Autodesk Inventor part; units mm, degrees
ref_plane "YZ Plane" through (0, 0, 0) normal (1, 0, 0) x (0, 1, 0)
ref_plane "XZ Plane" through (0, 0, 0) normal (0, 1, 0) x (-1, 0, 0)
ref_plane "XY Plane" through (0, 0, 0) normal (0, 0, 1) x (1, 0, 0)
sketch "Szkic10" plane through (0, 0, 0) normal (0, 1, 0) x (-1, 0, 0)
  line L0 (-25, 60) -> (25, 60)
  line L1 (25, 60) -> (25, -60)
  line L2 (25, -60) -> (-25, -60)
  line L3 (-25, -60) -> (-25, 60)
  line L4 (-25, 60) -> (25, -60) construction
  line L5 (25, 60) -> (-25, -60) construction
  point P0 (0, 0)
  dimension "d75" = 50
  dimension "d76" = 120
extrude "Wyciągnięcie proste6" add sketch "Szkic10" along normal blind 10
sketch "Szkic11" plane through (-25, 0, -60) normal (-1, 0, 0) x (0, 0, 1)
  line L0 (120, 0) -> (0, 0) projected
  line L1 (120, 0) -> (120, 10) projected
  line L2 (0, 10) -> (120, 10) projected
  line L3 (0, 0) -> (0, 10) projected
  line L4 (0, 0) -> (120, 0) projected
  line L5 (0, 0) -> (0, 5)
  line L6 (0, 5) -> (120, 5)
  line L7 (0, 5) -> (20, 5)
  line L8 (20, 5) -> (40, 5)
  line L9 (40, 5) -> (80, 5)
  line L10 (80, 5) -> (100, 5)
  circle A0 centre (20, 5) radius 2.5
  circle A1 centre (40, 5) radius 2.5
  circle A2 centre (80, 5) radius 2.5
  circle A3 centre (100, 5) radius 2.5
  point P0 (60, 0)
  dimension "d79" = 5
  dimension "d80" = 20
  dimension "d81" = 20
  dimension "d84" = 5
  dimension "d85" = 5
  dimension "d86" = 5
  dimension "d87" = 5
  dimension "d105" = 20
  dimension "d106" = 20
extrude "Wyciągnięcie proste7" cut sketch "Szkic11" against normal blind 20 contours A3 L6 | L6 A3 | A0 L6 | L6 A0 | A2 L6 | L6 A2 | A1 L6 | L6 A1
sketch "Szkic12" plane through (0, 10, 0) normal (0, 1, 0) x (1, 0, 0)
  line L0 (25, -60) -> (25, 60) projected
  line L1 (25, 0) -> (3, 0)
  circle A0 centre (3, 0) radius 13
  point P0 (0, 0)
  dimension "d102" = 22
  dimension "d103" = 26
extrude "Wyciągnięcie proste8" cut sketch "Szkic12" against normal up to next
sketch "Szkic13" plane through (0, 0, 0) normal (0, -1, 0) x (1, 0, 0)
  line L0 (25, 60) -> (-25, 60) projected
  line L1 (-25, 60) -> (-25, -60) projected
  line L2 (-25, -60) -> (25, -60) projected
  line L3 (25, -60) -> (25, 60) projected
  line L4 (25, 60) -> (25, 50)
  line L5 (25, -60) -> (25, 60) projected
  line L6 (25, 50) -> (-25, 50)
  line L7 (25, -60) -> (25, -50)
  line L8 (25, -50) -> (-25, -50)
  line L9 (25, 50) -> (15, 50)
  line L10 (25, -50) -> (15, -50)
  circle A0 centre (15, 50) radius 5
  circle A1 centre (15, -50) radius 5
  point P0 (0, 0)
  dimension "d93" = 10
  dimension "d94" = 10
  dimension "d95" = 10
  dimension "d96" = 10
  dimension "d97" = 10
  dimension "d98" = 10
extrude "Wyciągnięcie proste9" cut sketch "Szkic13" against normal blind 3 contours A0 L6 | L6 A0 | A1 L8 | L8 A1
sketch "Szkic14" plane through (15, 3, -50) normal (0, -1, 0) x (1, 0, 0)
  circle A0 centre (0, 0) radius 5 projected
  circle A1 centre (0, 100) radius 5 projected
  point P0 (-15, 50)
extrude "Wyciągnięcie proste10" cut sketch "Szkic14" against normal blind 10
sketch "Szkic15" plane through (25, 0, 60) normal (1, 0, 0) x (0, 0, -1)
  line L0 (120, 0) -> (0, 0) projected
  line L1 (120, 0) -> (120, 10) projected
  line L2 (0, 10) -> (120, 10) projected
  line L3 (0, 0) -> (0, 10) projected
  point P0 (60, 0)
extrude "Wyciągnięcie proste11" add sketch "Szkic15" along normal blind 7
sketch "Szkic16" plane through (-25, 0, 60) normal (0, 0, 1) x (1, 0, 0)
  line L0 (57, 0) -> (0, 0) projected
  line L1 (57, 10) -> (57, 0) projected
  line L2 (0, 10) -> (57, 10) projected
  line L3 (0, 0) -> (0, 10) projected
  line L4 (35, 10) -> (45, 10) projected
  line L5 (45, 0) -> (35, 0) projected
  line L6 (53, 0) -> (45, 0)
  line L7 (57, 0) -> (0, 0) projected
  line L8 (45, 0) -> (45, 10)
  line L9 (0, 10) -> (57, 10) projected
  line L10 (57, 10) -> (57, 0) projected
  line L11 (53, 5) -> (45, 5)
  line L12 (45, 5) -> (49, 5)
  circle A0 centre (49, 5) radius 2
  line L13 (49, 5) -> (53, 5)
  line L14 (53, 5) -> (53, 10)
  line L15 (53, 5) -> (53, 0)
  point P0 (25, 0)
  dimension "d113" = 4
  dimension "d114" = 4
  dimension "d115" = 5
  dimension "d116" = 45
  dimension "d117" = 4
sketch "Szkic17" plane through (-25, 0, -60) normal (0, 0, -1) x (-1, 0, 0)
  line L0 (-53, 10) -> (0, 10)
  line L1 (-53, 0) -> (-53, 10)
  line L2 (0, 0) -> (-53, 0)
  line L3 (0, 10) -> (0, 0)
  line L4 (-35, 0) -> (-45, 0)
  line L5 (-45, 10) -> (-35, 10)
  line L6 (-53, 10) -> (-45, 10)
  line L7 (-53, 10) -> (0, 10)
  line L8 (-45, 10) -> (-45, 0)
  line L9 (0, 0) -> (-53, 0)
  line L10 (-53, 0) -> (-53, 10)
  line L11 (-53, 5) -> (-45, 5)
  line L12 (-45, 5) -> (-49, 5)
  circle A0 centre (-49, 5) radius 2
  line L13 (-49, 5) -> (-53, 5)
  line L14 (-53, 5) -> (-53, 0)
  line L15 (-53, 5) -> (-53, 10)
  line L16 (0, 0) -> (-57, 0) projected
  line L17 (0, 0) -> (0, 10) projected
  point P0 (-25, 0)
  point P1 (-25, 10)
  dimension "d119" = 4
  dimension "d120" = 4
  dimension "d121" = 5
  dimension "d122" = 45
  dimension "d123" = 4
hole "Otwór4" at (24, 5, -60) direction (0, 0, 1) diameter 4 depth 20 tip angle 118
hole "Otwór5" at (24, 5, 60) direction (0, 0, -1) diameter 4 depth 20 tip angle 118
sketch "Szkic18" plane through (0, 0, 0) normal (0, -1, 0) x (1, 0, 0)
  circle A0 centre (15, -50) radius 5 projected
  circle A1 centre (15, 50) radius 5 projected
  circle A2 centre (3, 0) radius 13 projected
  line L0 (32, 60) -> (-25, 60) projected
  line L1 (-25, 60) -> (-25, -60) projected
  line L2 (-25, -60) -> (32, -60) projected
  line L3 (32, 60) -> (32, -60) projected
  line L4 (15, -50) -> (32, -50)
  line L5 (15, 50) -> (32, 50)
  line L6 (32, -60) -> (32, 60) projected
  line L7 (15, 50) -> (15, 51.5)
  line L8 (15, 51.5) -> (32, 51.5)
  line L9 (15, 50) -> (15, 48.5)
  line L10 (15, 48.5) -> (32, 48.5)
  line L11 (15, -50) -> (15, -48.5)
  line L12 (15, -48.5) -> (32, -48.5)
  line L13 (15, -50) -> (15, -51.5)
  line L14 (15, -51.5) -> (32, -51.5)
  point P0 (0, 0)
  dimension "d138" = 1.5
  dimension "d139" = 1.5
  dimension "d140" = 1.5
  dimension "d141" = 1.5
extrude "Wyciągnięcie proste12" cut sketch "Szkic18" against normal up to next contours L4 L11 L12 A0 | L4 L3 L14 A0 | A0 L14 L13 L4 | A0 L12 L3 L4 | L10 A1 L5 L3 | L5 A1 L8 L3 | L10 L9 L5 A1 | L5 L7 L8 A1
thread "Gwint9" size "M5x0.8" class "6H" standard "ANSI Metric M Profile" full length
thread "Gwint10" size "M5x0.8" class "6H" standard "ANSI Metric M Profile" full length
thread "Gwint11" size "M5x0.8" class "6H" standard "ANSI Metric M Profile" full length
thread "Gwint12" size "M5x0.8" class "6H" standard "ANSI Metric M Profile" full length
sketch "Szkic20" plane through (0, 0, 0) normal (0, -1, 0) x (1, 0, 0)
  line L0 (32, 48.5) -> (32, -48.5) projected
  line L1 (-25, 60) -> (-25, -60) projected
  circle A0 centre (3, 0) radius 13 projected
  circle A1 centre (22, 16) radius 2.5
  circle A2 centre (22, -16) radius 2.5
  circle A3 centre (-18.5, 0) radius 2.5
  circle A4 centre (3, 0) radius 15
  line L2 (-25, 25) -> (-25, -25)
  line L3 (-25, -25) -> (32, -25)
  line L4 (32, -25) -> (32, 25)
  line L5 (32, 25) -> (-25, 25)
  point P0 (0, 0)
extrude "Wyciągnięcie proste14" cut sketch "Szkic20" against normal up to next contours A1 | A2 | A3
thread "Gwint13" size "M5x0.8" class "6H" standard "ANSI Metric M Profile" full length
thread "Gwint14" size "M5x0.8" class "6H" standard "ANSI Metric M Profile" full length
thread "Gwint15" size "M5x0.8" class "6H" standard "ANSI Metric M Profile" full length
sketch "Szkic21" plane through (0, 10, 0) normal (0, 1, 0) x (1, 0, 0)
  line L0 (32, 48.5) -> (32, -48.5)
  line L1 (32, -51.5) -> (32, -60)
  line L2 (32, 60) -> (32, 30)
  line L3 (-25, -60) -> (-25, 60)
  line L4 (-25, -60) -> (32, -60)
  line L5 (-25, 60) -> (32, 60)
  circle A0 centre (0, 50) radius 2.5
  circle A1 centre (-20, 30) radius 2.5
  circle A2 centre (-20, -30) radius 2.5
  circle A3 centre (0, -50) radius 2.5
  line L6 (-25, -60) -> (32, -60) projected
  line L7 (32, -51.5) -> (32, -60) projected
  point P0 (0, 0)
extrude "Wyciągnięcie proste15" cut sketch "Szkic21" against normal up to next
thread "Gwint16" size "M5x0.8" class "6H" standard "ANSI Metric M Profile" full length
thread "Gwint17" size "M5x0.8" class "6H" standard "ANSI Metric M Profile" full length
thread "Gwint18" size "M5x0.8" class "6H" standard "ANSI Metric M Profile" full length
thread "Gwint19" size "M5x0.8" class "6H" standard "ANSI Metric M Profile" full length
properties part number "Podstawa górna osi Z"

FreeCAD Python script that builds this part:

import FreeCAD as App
import Part
import Sketcher


def add_polygon(sketch, points):
    """Adds a closed chain of lines whose ends are joined by coincident constraints."""
    first, n = sketch.GeometryCount, len(points)
    for a, b in zip(points, points[1:] + points[:1]):
        sketch.addGeometry(Part.LineSegment(App.Vector(*a, 0), App.Vector(*b, 0)), False)
    for i in range(n):
        sketch.addConstraint(Sketcher.Constraint("Coincident", first + i, 2, first + (i + 1) % n, 1))

doc = App.newDocument("Part")
body = doc.addObject("PartDesign::Body", "Body")

sketch1 = body.newObject("Sketcher::SketchObject", "Sketch")
sketch1.AttachmentSupport = (doc.getObject("XZ_Plane"), [""])
sketch1.MapMode = "FlatFace"
add_polygon(sketch1, [(-25, 60), (25, 60), (25, -60), (-25, -60)])
sketch1.addConstraint(Sketcher.Constraint("Horizontal", 0))
sketch1.addConstraint(Sketcher.Constraint("Vertical", 1))
sketch1.addConstraint(Sketcher.Constraint("Horizontal", 2))
sketch1.addConstraint(Sketcher.Constraint("Vertical", 3))
sketch1.addConstraint(Sketcher.Constraint("Symmetric", 0, 2, 2, 2, -1, 1))
sketch1.addConstraint(Sketcher.Constraint("DistanceX", 0, 1, 0, 2, 50.0))
sketch1.addConstraint(Sketcher.Constraint("DistanceY", 1, 2, 1, 1, 120.0))
pad1 = body.newObject("PartDesign::Pad", "Pad")
pad1.Profile = sketch1
pad1.Length = 10
pad1.Reversed = True

sketch2 = body.newObject("Sketcher::SketchObject", "Sketch001")
sketch2.AttachmentSupport = (doc.getObject("YZ_Plane"), [""])
sketch2.MapMode = "FlatFace"
sketch2.AttachmentOffset = App.Placement(App.Vector(0, 0, -25), App.Rotation())
sketch2.addGeometry(Part.Circle(App.Vector(5, 40, 0), App.Vector(0, 0, 1), 2.5), False)
sketch2.addGeometry(Part.Circle(App.Vector(5, -40, 0), App.Vector(0, 0, 1), 2.5), False)
sketch2.addGeometry(Part.Circle(App.Vector(5, 20, 0), App.Vector(0, 0, 1), 2.5), False)
sketch2.addGeometry(Part.Circle(App.Vector(5, -20, 0), App.Vector(0, 0, 1), 2.5), False)
sketch2.addConstraint(Sketcher.Constraint("Equal", 0, 1))
sketch2.addConstraint(Sketcher.Constraint("Equal", 1, 2))
sketch2.addConstraint(Sketcher.Constraint("Equal", 2, 3))
sketch2.addConstraint(Sketcher.Constraint("Symmetric", 0, 3, 1, 3, -1))
sketch2.addConstraint(Sketcher.Constraint("Symmetric", 2, 3, 3, 3, -1))
sketch2.addConstraint(Sketcher.Constraint("Vertical", 1, 3, 2, 3))
sketch2.addConstraint(Sketcher.Constraint("Diameter", 0, 5.0))
sketch2.addConstraint(Sketcher.Constraint("DistanceX", -1, 1, 0, 3, 5.0))
sketch2.addConstraint(Sketcher.Constraint("DistanceY", -1, 1, 2, 3, 20.0))
sketch2.addConstraint(Sketcher.Constraint("DistanceY", 2, 3, 0, 3, 20.0))
pocket1 = body.newObject("PartDesign::Pocket", "Pocket")
pocket1.Profile = sketch2
pocket1.Length = 20
pocket1.Reversed = True

sketch3 = body.newObject("Sketcher::SketchObject", "Sketch002")
sketch3.AttachmentSupport = (doc.getObject("XZ_Plane"), [""])
sketch3.MapMode = "FlatFace"
sketch3.AttachmentOffset = App.Placement(App.Vector(0, 0, -10), App.Rotation())
sketch3.addGeometry(Part.Circle(App.Vector(3, 0, 0), App.Vector(0, 0, 1), 13), False)
sketch3.addConstraint(Sketcher.Constraint("PointOnObject", 0, 3, -1))
sketch3.addConstraint(Sketcher.Constraint("Diameter", 0, 26.0))
sketch3.addConstraint(Sketcher.Constraint("DistanceX", -1, 1, 0, 3, 3.0))
pocket2 = body.newObject("PartDesign::Pocket", "Pocket001")
pocket2.Profile = sketch3
pocket2.Type = "UpToFirst"
pocket2.Reversed = True

sketch4 = body.newObject("Sketcher::SketchObject", "Sketch003")
sketch4.AttachmentSupport = (doc.getObject("XZ_Plane"), [""])
sketch4.MapMode = "FlatFace"
sketch4.addGeometry(Part.Circle(App.Vector(15, 50, 0), App.Vector(0, 0, 1), 5), False)
sketch4.addGeometry(Part.Circle(App.Vector(15, -50, 0), App.Vector(0, 0, 1), 5), False)
sketch4.addConstraint(Sketcher.Constraint("Equal", 0, 1))
sketch4.addConstraint(Sketcher.Constraint("Symmetric", 0, 3, 1, 3, -1))
sketch4.addConstraint(Sketcher.Constraint("Diameter", 0, 10.0))
sketch4.addConstraint(Sketcher.Constraint("DistanceX", -1, 1, 0, 3, 15.0))
sketch4.addConstraint(Sketcher.Constraint("DistanceY", -1, 1, 0, 3, 50.0))
pocket3 = body.newObject("PartDesign::Pocket", "Pocket002")
pocket3.Profile = sketch4
pocket3.Length = 3

sketch5 = body.newObject("Sketcher::SketchObject", "Sketch004")
sketch5.AttachmentSupport = (doc.getObject("XZ_Plane"), [""])
sketch5.MapMode = "FlatFace"
sketch5.AttachmentOffset = App.Placement(App.Vector(0, 0, -3), App.Rotation())
sketch5.addGeometry(Part.Circle(App.Vector(15, -50, 0), App.Vector(0, 0, 1), 5), False)
sketch5.addGeometry(Part.Circle(App.Vector(15, 50, 0), App.Vector(0, 0, 1), 5), False)
sketch5.addConstraint(Sketcher.Constraint("Equal", 0, 1))
sketch5.addConstraint(Sketcher.Constraint("Symmetric", 0, 3, 1, 3, -1))
sketch5.addConstraint(Sketcher.Constraint("Diameter", 0, 10.0))
sketch5.addConstraint(Sketcher.Constraint("DistanceX", -1, 1, 0, 3, 15.0))
sketch5.addConstraint(Sketcher.Constraint("DistanceY", 0, 3, -1, 1, 50.0))
pocket4 = body.newObject("PartDesign::Pocket", "Pocket003")
pocket4.Profile = sketch5
pocket4.Length = 10

sketch6 = body.newObject("Sketcher::SketchObject", "Sketch005")
sketch6.AttachmentSupport = (doc.getObject("YZ_Plane"), [""])
sketch6.MapMode = "FlatFace"
sketch6.AttachmentOffset = App.Placement(App.Vector(0, 0, 25), App.Rotation())
add_polygon(sketch6, [(0, 60), (0, -60), (10, -60), (10, 60)])
sketch6.addConstraint(Sketcher.Constraint("Vertical", 0))
sketch6.addConstraint(Sketcher.Constraint("Horizontal", 1))
sketch6.addConstraint(Sketcher.Constraint("Vertical", 2))
sketch6.addConstraint(Sketcher.Constraint("Horizontal", 3))
sketch6.addConstraint(Sketcher.Constraint("Symmetric", 0, 2, 3, 2, -1, 1))
sketch6.addConstraint(Sketcher.Constraint("DistanceX", 1, 1, 1, 2, 10.0))
sketch6.addConstraint(Sketcher.Constraint("DistanceY", 0, 2, 0, 1, 120.0))
pad2 = body.newObject("PartDesign::Pad", "Pad001")
pad2.Profile = sketch6
pad2.Length = 7

sketch7 = body.newObject("Sketcher::SketchObject", "Sketch006")
sketch7.AttachmentSupport = (doc.getObject("XY_Plane"), [""])
sketch7.MapMode = "FlatFace"
sketch7.AttachmentOffset = App.Placement(App.Vector(0, 0, -60), App.Rotation())
sketch7.addGeometry(Part.Circle(App.Vector(24, 5, 0), App.Vector(0, 0, 1), 2), False)
sketch7.addConstraint(Sketcher.Constraint("Diameter", 0, 4.0))
sketch7.addConstraint(Sketcher.Constraint("DistanceX", -1, 1, 0, 3, 24.0))
sketch7.addConstraint(Sketcher.Constraint("DistanceY", -1, 1, 0, 3, 5.0))
doc.recompute()
hole = body.newObject("PartDesign::Hole", "Hole")
hole.Profile = sketch7
hole.ThreadType = "None"
hole.Diameter = 4
hole.DepthType = "Dimension"
hole.Depth = 20
hole.DrillPoint = "Angled"
hole.DrillPointAngle = 118
hole.Reversed = True

sketch8 = body.newObject("Sketcher::SketchObject", "Sketch007")
sketch8.AttachmentSupport = (doc.getObject("XY_Plane"), [""])
sketch8.MapMode = "FlatFace"
sketch8.AttachmentOffset = App.Placement(App.Vector(0, 0, 60), App.Rotation())
sketch8.addGeometry(Part.Circle(App.Vector(24, 5, 0), App.Vector(0, 0, 1), 2), False)
sketch8.addConstraint(Sketcher.Constraint("Diameter", 0, 4.0))
sketch8.addConstraint(Sketcher.Constraint("DistanceX", -1, 1, 0, 3, 24.0))
sketch8.addConstraint(Sketcher.Constraint("DistanceY", -1, 1, 0, 3, 5.0))
doc.recompute()
hole2 = body.newObject("PartDesign::Hole", "Hole001")
hole2.Profile = sketch8
hole2.ThreadType = "None"
hole2.Diameter = 4
hole2.DepthType = "Dimension"
hole2.Depth = 20
hole2.DrillPoint = "Angled"
hole2.DrillPointAngle = 118

sketch9 = body.newObject("Sketcher::SketchObject", "Sketch008")
sketch9.AttachmentSupport = (doc.getObject("XZ_Plane"), [""])
sketch9.MapMode = "FlatFace"
add_polygon(sketch9, [(15, -48.5), (15, -51.5), (32, -51.5), (32, -48.5)])
add_polygon(sketch9, [(32, 48.5), (32, 51.5), (15, 51.5), (15, 48.5)])
sketch9.addConstraint(Sketcher.Constraint("Vertical", 0))
sketch9.addConstraint(Sketcher.Constraint("Horizontal", 1))
sketch9.addConstraint(Sketcher.Constraint("Vertical", 2))
sketch9.addConstraint(Sketcher.Constraint("Horizontal", 3))
sketch9.addConstraint(Sketcher.Constraint("Vertical", 4))
sketch9.addConstraint(Sketcher.Constraint("Horizontal", 5))
sketch9.addConstraint(Sketcher.Constraint("Vertical", 6))
sketch9.addConstraint(Sketcher.Constraint("Horizontal", 7))
sketch9.addConstraint(Sketcher.Constraint("Symmetric", 1, 2, 4, 2, -1))
sketch9.addConstraint(Sketcher.Constraint("Symmetric", 3, 2, 6, 2, -1))
sketch9.addConstraint(Sketcher.Constraint("DistanceX", 1, 1, 1, 2, 17.0))
sketch9.addConstraint(Sketcher.Constraint("DistanceY", 0, 2, 0, 1, 3.0))
sketch9.addConstraint(Sketcher.Constraint("DistanceX", -1, 1, 0, 2, 15.0))
sketch9.addConstraint(Sketcher.Constraint("DistanceY", 2, 2, 4, 2, 100.0))
pocket5 = body.newObject("PartDesign::Pocket", "Pocket004")
pocket5.Profile = sketch9
pocket5.Type = "UpToFirst"

sketch10 = body.newObject("Sketcher::SketchObject", "Sketch009")
sketch10.AttachmentSupport = (doc.getObject("XZ_Plane"), [""])
sketch10.MapMode = "FlatFace"
sketch10.addGeometry(Part.Circle(App.Vector(22, 16, 0), App.Vector(0, 0, 1), 2.5), False)
sketch10.addGeometry(Part.Circle(App.Vector(22, -16, 0), App.Vector(0, 0, 1), 2.5), False)
sketch10.addGeometry(Part.Circle(App.Vector(-18.5, 0, 0), App.Vector(0, 0, 1), 2.5), False)
sketch10.addConstraint(Sketcher.Constraint("Equal", 0, 1))
sketch10.addConstraint(Sketcher.Constraint("Equal", 1, 2))
sketch10.addConstraint(Sketcher.Constraint("Symmetric", 0, 3, 1, 3, -1))
sketch10.addConstraint(Sketcher.Constraint("PointOnObject", 2, 3, -1))
sketch10.addConstraint(Sketcher.Constraint("Diameter", 0, 5.0))
sketch10.addConstraint(Sketcher.Constraint("DistanceX", -1, 1, 0, 3, 22.0))
sketch10.addConstraint(Sketcher.Constraint("DistanceY", -1, 1, 0, 3, 16.0))
sketch10.addConstraint(Sketcher.Constraint("DistanceX", 2, 3, -1, 1, 18.5))
pocket6 = body.newObject("PartDesign::Pocket", "Pocket005")
pocket6.Profile = sketch10
pocket6.Length = 10

sketch11 = body.newObject("Sketcher::SketchObject", "Sketch010")
sketch11.AttachmentSupport = (doc.getObject("XZ_Plane"), [""])
sketch11.MapMode = "FlatFace"
sketch11.AttachmentOffset = App.Placement(App.Vector(0, 0, -10), App.Rotation())
sketch11.addGeometry(Part.Circle(App.Vector(0, -50, 0), App.Vector(0, 0, 1), 2.5), False)
sketch11.addGeometry(Part.Circle(App.Vector(-20, -30, 0), App.Vector(0, 0, 1), 2.5), False)
sketch11.addGeometry(Part.Circle(App.Vector(-20, 30, 0), App.Vector(0, 0, 1), 2.5), False)
sketch11.addGeometry(Part.Circle(App.Vector(0, 50, 0), App.Vector(0, 0, 1), 2.5), False)
sketch11.addConstraint(Sketcher.Constraint("Equal", 0, 1))
sketch11.addConstraint(Sketcher.Constraint("Equal", 1, 2))
sketch11.addConstraint(Sketcher.Constraint("Equal", 2, 3))
sketch11.addConstraint(Sketcher.Constraint("Symmetric", 0, 3, 3, 3, -1, 1))
sketch11.addConstraint(Sketcher.Constraint("Symmetric", 1, 3, 2, 3, -1))
sketch11.addConstraint(Sketcher.Constraint("PointOnObject", 0, 3, -2))
sketch11.addConstraint(Sketcher.Constraint("Diameter", 0, 5.0))
sketch11.addConstraint(Sketcher.Constraint("DistanceY", 0, 3, -1, 1, 50.0))
sketch11.addConstraint(Sketcher.Constraint("DistanceX", 1, 3, -1, 1, 20.0))
sketch11.addConstraint(Sketcher.Constraint("DistanceY", 1, 3, -1, 1, 30.0))
pocket7 = body.newObject("PartDesign::Pocket", "Pocket006")
pocket7.Profile = sketch11
pocket7.Type = "UpToFirst"
pocket7.Reversed = True

doc.recompute()
